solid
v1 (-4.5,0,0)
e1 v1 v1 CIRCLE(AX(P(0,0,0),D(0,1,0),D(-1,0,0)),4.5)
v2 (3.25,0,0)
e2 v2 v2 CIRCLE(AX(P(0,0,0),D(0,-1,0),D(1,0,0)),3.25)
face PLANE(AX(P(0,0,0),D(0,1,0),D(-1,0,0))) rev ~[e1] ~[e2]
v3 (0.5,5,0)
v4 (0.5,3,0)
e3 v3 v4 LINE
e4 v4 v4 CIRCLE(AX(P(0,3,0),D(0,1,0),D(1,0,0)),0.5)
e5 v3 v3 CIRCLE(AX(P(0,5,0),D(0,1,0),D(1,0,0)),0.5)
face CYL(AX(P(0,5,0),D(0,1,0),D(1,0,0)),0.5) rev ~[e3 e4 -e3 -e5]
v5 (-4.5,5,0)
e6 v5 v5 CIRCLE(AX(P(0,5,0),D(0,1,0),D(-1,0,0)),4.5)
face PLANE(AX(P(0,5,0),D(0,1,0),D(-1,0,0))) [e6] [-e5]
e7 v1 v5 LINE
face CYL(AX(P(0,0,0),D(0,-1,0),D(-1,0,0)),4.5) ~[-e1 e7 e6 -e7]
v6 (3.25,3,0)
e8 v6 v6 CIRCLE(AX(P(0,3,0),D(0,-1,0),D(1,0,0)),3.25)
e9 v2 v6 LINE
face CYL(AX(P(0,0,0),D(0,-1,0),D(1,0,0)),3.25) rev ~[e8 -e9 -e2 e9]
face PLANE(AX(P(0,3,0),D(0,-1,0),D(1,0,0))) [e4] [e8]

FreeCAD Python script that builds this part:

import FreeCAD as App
import Part
import Sketcher

doc = App.newDocument("Part")
body = doc.addObject("PartDesign::Body", "Body")

# Sketch on XZ plane
sketch1 = body.newObject("Sketcher::SketchObject", "Sketch")
sketch1.AttachmentSupport = (doc.getObject("XZ_Plane"), [""])
sketch1.MapMode = "FlatFace"
sketch1.addGeometry(Part.Circle(App.Vector(0, 0, 0), App.Vector(0, 0, 1), 4.5), False)
sketch1.addConstraint([
    Sketcher.Constraint("Coincident", 0, 3, -1, 1),
    Sketcher.Constraint("Diameter", 0, 9.0),
])
pad1 = body.newObject("PartDesign::Pad", "Pad")
pad1.Profile = sketch1
pad1.Length = 5
pad1.Reversed = True

# Sketch on XZ plane
sketch2 = body.newObject("Sketcher::SketchObject", "Sketch001")
sketch2.AttachmentSupport = (doc.getObject("XZ_Plane"), [""])
sketch2.MapMode = "FlatFace"
sketch2.addGeometry(Part.Circle(App.Vector(0, 0, 0), App.Vector(0, 0, 1), 3.2), False)
sketch2.addConstraint([
    Sketcher.Constraint("Coincident", 0, 3, -1, 1),
    Sketcher.Constraint("Diameter", 0, 6.5),
])
pocket1 = body.newObject("PartDesign::Pocket", "Pocket")
pocket1.Profile = sketch2
pocket1.Length = 3

# Sketch on XZ plane
sketch3 = body.newObject("Sketcher::SketchObject", "Sketch002")
sketch3.AttachmentSupport = (doc.getObject("XZ_Plane"), [""])
sketch3.MapMode = "FlatFace"
sketch3.AttachmentOffset = App.Placement(App.Vector(0, 0, -5), App.Rotation())
sketch3.addGeometry(Part.Circle(App.Vector(0, 0, 0), App.Vector(0, 0, 1), 0.5), False)
sketch3.addConstraint([
    Sketcher.Constraint("Coincident", 0, 3, -1, 1),
    Sketcher.Constraint("Diameter", 0, 1.0),
])
pocket2 = body.newObject("PartDesign::Pocket", "Pocket001")
pocket2.Profile = sketch3
pocket2.Length = 3

# Sketch on XZ plane
sketch4 = body.newObject("Sketcher::SketchObject", "Sketch003")
sketch4.AttachmentSupport = (doc.getObject("XZ_Plane"), [""])
sketch4.MapMode = "FlatFace"
sketch4.AttachmentOffset = App.Placement(App.Vector(0, 0, -5), App.Rotation())
sketch4.addGeometry(Part.Circle(App.Vector(0, 0, 0), App.Vector(0, 0, 1), 0.5), False)
sketch4.addConstraint([
    Sketcher.Constraint("Coincident", 0, 3, -1, 1),
    Sketcher.Constraint("Diameter", 0, 1.0),
])
pocket3 = body.newObject("PartDesign::Pocket", "Pocket002")
pocket3.Profile = sketch4
pocket3.Length = 3

# Sketch on XZ plane
sketch5 = body.newObject("Sketcher::SketchObject", "Sketch004")
sketch5.AttachmentSupport = (doc.getObject("XZ_Plane"), [""])
sketch5.MapMode = "FlatFace"
sketch5.AttachmentOffset = App.Placement(App.Vector(0, 0, -5), App.Rotation())
sketch5.addGeometry(Part.Circle(App.Vector(0, 0, 0), App.Vector(0, 0, 1), 0.5), False)
sketch5.addConstraint([
    Sketcher.Constraint("Coincident", 0, 3, -1, 1),
    Sketcher.Constraint("Diameter", 0, 1.0),
])
pocket4 = body.newObject("PartDesign::Pocket", "Pocket003")
pocket4.Profile = sketch5
pocket4.Length = 3
pocket4.Reversed = True

doc.recompute()
